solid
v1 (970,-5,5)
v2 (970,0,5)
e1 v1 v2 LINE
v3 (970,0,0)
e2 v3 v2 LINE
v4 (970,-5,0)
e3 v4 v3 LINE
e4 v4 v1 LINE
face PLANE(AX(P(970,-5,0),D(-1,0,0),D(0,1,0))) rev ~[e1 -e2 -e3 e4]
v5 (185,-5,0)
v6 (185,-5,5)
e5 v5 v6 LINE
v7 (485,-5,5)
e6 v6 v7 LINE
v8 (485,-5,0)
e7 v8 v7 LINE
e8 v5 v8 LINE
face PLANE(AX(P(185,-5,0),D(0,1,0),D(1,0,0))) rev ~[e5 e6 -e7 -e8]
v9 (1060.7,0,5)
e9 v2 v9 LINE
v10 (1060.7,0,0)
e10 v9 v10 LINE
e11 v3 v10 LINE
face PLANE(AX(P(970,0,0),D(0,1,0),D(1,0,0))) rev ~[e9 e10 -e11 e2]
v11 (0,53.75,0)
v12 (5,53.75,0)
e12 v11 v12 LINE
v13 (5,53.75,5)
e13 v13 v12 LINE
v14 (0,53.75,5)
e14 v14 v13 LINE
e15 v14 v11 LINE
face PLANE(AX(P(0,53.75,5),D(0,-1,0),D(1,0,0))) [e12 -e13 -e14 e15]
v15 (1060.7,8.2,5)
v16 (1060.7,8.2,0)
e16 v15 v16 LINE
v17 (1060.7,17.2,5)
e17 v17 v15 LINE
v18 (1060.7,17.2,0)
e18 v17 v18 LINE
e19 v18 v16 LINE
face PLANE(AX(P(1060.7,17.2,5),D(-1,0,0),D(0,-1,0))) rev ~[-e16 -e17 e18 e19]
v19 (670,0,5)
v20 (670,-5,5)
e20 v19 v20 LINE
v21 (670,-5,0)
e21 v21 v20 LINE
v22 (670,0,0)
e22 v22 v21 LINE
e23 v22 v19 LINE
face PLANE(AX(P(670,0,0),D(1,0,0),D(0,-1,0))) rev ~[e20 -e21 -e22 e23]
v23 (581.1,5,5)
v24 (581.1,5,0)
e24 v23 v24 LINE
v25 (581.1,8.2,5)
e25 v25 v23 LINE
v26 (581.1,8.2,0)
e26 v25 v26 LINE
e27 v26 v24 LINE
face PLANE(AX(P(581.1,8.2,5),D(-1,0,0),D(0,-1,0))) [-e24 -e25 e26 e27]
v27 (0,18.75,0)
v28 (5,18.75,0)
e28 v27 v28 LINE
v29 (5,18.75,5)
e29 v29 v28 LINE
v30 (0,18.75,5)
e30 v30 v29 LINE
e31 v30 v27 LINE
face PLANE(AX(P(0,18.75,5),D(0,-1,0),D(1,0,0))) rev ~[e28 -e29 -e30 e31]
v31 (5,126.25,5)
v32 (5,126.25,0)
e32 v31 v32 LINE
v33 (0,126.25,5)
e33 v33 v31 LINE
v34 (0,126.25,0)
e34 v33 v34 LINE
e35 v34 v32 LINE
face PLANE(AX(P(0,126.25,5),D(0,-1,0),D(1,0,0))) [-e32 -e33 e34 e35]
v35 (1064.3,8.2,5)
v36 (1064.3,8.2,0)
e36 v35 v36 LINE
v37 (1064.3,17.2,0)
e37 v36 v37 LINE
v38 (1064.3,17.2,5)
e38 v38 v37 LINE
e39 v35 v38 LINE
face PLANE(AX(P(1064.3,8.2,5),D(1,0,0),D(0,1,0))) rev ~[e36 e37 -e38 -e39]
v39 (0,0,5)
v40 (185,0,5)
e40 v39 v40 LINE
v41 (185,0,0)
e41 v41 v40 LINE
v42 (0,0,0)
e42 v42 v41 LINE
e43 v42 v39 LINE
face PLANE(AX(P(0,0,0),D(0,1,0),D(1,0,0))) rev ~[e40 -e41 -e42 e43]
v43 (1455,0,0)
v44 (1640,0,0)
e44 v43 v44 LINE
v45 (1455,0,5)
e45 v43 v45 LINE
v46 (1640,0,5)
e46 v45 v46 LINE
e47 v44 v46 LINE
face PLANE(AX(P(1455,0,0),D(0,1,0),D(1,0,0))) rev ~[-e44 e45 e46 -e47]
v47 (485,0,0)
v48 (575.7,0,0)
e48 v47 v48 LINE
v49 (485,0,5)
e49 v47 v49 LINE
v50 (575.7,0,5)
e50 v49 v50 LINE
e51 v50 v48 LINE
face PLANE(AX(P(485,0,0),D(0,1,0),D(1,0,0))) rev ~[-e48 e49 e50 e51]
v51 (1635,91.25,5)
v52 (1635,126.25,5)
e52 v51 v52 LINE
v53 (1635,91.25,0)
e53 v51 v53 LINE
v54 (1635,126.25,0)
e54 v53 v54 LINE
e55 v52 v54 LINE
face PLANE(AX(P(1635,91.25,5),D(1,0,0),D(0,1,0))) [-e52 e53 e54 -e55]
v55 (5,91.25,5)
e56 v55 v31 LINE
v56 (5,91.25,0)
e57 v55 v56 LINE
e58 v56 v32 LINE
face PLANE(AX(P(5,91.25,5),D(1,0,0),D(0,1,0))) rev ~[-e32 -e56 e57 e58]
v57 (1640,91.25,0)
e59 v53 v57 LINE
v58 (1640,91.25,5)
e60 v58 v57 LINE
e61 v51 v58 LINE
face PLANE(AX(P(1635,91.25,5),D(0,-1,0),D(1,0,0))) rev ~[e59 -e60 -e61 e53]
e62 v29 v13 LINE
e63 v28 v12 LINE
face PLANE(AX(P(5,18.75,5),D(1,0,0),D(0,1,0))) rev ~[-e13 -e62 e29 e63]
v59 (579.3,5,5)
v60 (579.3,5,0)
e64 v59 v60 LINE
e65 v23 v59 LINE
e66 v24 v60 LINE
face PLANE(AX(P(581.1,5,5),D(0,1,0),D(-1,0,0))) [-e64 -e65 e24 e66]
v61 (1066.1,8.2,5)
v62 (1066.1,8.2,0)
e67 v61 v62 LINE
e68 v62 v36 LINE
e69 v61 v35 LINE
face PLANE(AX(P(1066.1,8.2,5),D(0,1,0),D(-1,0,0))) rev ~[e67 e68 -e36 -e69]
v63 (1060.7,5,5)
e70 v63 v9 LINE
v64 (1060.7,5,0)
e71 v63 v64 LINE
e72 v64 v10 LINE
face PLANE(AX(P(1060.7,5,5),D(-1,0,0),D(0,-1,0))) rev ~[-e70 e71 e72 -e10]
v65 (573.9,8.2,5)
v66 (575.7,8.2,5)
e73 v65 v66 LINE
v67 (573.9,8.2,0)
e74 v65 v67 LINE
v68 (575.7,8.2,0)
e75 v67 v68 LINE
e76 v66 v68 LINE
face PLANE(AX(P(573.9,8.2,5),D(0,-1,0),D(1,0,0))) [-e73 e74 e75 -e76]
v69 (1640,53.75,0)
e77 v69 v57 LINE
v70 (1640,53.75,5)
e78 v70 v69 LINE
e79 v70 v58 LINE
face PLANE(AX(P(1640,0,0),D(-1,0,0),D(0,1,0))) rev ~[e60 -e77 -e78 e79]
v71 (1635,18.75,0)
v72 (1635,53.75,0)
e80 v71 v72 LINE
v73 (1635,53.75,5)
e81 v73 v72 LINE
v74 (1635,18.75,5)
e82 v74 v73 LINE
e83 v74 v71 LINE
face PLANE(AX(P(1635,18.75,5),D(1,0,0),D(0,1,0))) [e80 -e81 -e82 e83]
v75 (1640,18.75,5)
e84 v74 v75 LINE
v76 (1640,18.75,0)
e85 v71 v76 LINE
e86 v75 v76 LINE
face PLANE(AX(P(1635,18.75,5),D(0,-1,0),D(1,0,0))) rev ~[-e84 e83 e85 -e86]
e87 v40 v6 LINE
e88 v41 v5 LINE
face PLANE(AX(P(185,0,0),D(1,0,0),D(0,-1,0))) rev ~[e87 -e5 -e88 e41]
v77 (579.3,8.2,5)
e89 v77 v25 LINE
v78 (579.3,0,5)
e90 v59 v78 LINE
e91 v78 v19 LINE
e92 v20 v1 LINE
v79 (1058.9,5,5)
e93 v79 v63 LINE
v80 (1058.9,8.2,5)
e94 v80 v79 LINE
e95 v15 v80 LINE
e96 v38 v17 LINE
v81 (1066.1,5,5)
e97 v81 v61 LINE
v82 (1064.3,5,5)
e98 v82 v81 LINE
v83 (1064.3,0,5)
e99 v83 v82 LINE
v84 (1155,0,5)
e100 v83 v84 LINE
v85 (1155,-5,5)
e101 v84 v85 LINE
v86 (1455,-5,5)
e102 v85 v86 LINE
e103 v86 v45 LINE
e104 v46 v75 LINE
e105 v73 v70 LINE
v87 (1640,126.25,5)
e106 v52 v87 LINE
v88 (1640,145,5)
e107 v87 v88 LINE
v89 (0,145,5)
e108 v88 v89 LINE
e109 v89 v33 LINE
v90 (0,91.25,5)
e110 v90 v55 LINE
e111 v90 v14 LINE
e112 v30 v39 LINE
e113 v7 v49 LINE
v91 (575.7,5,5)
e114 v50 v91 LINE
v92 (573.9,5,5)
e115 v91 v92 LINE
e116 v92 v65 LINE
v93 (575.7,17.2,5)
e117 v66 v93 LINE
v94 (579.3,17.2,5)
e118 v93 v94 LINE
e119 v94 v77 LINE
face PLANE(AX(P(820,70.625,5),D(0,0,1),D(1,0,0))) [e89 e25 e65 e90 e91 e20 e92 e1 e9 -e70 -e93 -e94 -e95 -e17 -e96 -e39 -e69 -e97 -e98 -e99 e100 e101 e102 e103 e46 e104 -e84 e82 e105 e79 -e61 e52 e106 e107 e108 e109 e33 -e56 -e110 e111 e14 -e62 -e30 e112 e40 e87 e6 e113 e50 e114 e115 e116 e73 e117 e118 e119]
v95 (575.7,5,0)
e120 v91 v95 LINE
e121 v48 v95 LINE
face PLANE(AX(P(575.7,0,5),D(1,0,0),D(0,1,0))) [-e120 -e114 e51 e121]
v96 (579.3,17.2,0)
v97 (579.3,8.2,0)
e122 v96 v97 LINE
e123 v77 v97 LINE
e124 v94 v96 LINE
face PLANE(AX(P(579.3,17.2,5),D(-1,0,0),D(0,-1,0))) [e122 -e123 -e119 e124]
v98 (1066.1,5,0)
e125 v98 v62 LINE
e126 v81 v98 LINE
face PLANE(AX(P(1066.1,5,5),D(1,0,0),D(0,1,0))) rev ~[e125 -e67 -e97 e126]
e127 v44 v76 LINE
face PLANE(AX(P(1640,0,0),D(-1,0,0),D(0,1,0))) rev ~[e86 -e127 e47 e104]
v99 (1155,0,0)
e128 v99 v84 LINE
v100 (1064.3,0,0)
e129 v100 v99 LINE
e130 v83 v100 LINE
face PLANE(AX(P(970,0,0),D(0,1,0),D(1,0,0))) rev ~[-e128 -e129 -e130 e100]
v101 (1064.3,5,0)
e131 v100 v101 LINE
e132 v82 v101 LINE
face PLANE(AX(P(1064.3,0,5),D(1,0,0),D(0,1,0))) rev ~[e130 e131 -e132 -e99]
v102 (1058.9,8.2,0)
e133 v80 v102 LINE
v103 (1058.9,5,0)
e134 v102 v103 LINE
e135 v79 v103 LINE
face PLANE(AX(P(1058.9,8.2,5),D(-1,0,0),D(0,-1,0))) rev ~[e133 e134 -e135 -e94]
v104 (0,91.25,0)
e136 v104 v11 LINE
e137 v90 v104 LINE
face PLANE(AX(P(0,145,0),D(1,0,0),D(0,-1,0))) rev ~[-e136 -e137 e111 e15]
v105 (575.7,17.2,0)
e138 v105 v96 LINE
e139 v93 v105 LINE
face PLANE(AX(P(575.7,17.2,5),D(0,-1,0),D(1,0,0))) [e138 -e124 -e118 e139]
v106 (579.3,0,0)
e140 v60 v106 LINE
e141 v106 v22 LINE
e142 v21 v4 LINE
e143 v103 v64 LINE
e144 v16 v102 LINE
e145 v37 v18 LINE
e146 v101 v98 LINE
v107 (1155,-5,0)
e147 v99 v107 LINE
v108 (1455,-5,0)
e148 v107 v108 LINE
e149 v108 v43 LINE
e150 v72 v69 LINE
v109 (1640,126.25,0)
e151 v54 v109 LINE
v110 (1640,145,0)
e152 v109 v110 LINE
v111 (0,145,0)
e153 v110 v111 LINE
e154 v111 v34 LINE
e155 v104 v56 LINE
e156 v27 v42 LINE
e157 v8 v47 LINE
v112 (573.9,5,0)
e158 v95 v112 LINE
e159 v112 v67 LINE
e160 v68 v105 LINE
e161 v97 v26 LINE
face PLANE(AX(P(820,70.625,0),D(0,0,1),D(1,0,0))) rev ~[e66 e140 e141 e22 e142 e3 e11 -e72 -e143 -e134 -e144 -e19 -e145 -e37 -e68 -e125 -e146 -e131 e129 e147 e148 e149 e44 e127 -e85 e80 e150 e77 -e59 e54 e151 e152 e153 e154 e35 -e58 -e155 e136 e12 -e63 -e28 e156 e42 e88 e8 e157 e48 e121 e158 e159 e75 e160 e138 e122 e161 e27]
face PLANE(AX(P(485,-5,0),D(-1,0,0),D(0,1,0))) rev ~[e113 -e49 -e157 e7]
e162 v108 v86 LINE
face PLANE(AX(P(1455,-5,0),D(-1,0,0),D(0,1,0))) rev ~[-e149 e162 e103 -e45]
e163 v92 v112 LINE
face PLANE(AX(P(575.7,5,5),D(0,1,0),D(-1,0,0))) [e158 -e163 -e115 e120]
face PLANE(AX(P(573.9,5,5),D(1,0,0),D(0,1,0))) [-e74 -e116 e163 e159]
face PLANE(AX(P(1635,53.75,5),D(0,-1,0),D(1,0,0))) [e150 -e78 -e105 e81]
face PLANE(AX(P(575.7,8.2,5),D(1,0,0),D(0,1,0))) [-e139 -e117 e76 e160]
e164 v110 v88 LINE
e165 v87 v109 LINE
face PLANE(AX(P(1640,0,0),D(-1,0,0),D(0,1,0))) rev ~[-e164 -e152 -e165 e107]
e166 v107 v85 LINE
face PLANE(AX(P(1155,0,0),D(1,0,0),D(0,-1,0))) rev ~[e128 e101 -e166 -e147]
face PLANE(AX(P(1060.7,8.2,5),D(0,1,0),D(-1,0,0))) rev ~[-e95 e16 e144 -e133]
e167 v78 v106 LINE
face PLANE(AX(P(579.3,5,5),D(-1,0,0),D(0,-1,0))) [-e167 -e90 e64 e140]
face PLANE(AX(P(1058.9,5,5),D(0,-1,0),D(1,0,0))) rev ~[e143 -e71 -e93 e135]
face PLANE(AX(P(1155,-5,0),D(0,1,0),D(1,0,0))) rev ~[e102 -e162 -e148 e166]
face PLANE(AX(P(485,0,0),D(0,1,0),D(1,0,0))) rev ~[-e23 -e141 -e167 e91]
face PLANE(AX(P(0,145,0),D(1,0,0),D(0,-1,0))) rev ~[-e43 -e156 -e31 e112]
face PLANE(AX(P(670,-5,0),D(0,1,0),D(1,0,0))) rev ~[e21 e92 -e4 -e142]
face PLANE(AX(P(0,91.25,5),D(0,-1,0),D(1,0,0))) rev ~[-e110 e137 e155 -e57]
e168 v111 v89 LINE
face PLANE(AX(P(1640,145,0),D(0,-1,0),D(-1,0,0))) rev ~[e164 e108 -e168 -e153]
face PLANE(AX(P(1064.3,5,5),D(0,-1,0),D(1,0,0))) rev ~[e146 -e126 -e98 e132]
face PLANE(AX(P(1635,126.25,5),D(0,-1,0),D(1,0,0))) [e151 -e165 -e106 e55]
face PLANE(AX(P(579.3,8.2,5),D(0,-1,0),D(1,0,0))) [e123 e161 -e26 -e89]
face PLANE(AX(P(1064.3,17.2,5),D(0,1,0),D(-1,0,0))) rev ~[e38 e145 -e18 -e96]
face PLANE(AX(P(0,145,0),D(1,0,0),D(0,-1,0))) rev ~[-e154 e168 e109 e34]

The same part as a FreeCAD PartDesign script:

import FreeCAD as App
import Part
import Sketcher

V = App.Vector


def add_polygon(sketch, points):
    """Adds a closed chain of lines whose ends are joined by coincident constraints."""
    first, n = sketch.GeometryCount, len(points)
    for a, b in zip(points, points[1:] + points[:1]):
        sketch.addGeometry(Part.LineSegment(App.Vector(*a, 0), App.Vector(*b, 0)), False)
    for i in range(n):
        sketch.addConstraint(Sketcher.Constraint("Coincident", first + i, 2, first + (i + 1) % n, 1))

doc = App.newDocument("Part")
body = doc.addObject("PartDesign::Body", "Body")

sketch1 = body.newObject("Sketcher::SketchObject", "Sketch")
sketch1.AttachmentSupport = (doc.getObject("XY_Plane"), [""])
sketch1.MapMode = "FlatFace"
add_polygon(sketch1, [(0, 145), (0, 0), (185, 0), (185, -5), (485, -5), (485, 0), (670, 0), (670, -5), (970, -5), (970, 0), (1155, 0), (1155, -5), (1455, -5), (1455, 0), (1640, 0), (1640, 145)])
sketch1.addConstraint([
    Sketcher.Constraint("Vertical", 0),
    Sketcher.Constraint("Horizontal", 1),
    Sketcher.Constraint("Vertical", 2),
    Sketcher.Constraint("Horizontal", 3),
    Sketcher.Constraint("Vertical", 4),
    Sketcher.Constraint("Horizontal", 5),
    Sketcher.Constraint("Vertical", 6),
    Sketcher.Constraint("Horizontal", 7),
    Sketcher.Constraint("Vertical", 8),
    Sketcher.Constraint("Horizontal", 9),
    Sketcher.Constraint("Vertical", 10),
    Sketcher.Constraint("Horizontal", 11),
    Sketcher.Constraint("Vertical", 12),
    Sketcher.Constraint("Horizontal", 13),
    Sketcher.Constraint("Vertical", 14),
    Sketcher.Constraint("Horizontal", 15),
    Sketcher.Constraint("Coincident", 0, 2, -1, 1),
    Sketcher.Constraint("PointOnObject", 4, 2, -1),
    Sketcher.Constraint("PointOnObject", 8, 2, -1),
    Sketcher.Constraint("PointOnObject", 12, 2, -1),
    Sketcher.Constraint("Horizontal", 3, 2, 6, 2),
    Sketcher.Constraint("Horizontal", 7, 2, 10, 2),
    Sketcher.Constraint("Equal", 1, 5),
    Sketcher.Constraint("Equal", 3, 7),
    Sketcher.Constraint("Equal", 5, 9),
    Sketcher.Constraint("Equal", 7, 11),
    Sketcher.Constraint("Equal", 9, 13),
    Sketcher.Constraint("DistanceX", 1, 1, 1, 2, 185.0),
    Sketcher.Constraint("DistanceX", 3, 1, 3, 2, 300.0),
    Sketcher.Constraint("DistanceY", 0, 2, 0, 1, 145.0),
    Sketcher.Constraint("DistanceY", 2, 2, 2, 1, 5.0),
])
pad1 = body.newObject("PartDesign::Pad", "Pad")
pad1.Profile = sketch1
pad1.Length = 5

sketch2 = body.newObject("Sketcher::SketchObject", "Sketch001")
sketch2.AttachmentSupport = (doc.getObject("XY_Plane"), [""])
sketch2.MapMode = "FlatFace"
sketch2.AttachmentOffset = App.Placement(V(0, 0, 5), App.Rotation())
add_polygon(sketch2, [(1635, 126), (1635, 91), (1640, 91), (1640, 126)])
add_polygon(sketch2, [(1635, 54), (1635, 19), (1640, 19), (1640, 54)])
add_polygon(sketch2, [(0, 54), (0, 19), (5, 19), (5, 54)])
add_polygon(sketch2, [(0, 126), (0, 91), (5, 91), (5, 126)])
sketch2.addConstraint([
    Sketcher.Constraint("Vertical", 0),
    Sketcher.Constraint("Horizontal", 1),
    Sketcher.Constraint("Vertical", 2),
    Sketcher.Constraint("Horizontal", 3),
    Sketcher.Constraint("Vertical", 4),
    Sketcher.Constraint("Horizontal", 5),
    Sketcher.Constraint("Vertical", 6),
    Sketcher.Constraint("Horizontal", 7),
    Sketcher.Constraint("Vertical", 8),
    Sketcher.Constraint("Horizontal", 9),
    Sketcher.Constraint("Vertical", 10),
    Sketcher.Constraint("Horizontal", 11),
    Sketcher.Constraint("Vertical", 12),
    Sketcher.Constraint("Horizontal", 13),
    Sketcher.Constraint("Vertical", 14),
    Sketcher.Constraint("Horizontal", 15),
    Sketcher.Constraint("PointOnObject", 8, 2, -2),
    Sketcher.Constraint("PointOnObject", 12, 2, -2),
    Sketcher.Constraint("Horizontal", 5, 2, 8, 2),
    Sketcher.Constraint("Horizontal", 7, 2, 10, 2),
    Sketcher.Constraint("Horizontal", 1, 2, 12, 2),
    Sketcher.Constraint("Horizontal", 3, 2, 14, 2),
    Sketcher.Constraint("Vertical", 3, 2, 4, 2),
    Sketcher.Constraint("Vertical", 2, 2, 5, 2),
    Sketcher.Constraint("Vertical", 10, 2, 13, 2),
    Sketcher.Constraint("Equal", 7, 9),
    Sketcher.Constraint("Equal", 2, 4),
    Sketcher.Constraint("DistanceX", 1, 1, 1, 2, 5.0),
    Sketcher.Constraint("DistanceY", 0, 2, 0, 1, 35.0),
    Sketcher.Constraint("DistanceX", -1, 1, 0, 2, 1635.0),
    Sketcher.Constraint("DistanceY", 4, 2, 0, 2, 72.5),
    Sketcher.Constraint("DistanceY", -1, 1, 0, 2, 91.25),
])
pocket1 = body.newObject("PartDesign::Pocket", "Pocket")
pocket1.Profile = sketch2
pocket1.Length = 5

sketch3 = body.newObject("Sketcher::SketchObject", "Sketch002")
sketch3.AttachmentSupport = (doc.getObject("XY_Plane"), [""])
sketch3.MapMode = "FlatFace"
sketch3.AttachmentOffset = App.Placement(V(0, 0, 5), App.Rotation())
add_polygon(sketch3, [(575.7, 0), (579.3, 0), (579.3, 5), (581.1, 5), (581.1, 8.2), (579.3, 8.2), (579.3, 17.2), (575.7, 17.2), (575.7, 8.2), (573.9, 8.2), (573.9, 5), (575.7, 5)])
add_polygon(sketch3, [(1064.3, 8.2), (1064.3, 17.2), (1060.7, 17.2), (1060.7, 8.2), (1058.9, 8.2), (1058.9, 5), (1060.7, 5), (1060.7, 0), (1064.3, 0), (1064.3, 5), (1066.1, 5), (1066.1, 8.2)])
sketch3.addConstraint([
    Sketcher.Constraint("Horizontal", 0),
    Sketcher.Constraint("Vertical", 1),
    Sketcher.Constraint("Horizontal", 2),
    Sketcher.Constraint("Vertical", 3),
    Sketcher.Constraint("Horizontal", 4),
    Sketcher.Constraint("Vertical", 5),
    Sketcher.Constraint("Horizontal", 6),
    Sketcher.Constraint("Vertical", 7),
    Sketcher.Constraint("Horizontal", 8),
    Sketcher.Constraint("Vertical", 9),
    Sketcher.Constraint("Horizontal", 10),
    Sketcher.Constraint("Vertical", 11),
    Sketcher.Constraint("Vertical", 12),
    Sketcher.Constraint("Horizontal", 13),
    Sketcher.Constraint("Vertical", 14),
    Sketcher.Constraint("Horizontal", 15),
    Sketcher.Constraint("Vertical", 16),
    Sketcher.Constraint("Horizontal", 17),
    Sketcher.Constraint("Vertical", 18),
    Sketcher.Constraint("Horizontal", 19),
    Sketcher.Constraint("Vertical", 20),
    Sketcher.Constraint("Horizontal", 21),
    Sketcher.Constraint("Vertical", 22),
    Sketcher.Constraint("Horizontal", 23),
    Sketcher.Constraint("PointOnObject", 0, 2, -1),
    Sketcher.Constraint("PointOnObject", 18, 2, -1),
    Sketcher.Constraint("Horizontal", 4, 2, 7, 2),
    Sketcher.Constraint("Horizontal", 2, 2, 9, 2),
    Sketcher.Constraint("Horizontal", 6, 2, 12, 2),
    Sketcher.Constraint("Horizontal", 8, 2, 14, 2),
    Sketcher.Constraint("Horizontal", 10, 2, 16, 2),
    Sketcher.Constraint("Horizontal", 17, 2, 20, 2),
    Sketcher.Constraint("Horizontal", 15, 2, 22, 2),
    Sketcher.Constraint("Vertical", 1, 2, 4, 2),
    Sketcher.Constraint("Vertical", 7, 2, 10, 2),
    Sketcher.Constraint("Vertical", 14, 2, 17, 2),
    Sketcher.Constraint("Vertical", 12, 2, 19, 2),
    Sketcher.Constraint("Equal", 4, 8),
    Sketcher.Constraint("Equal", 6, 13),
    Sketcher.Constraint("Equal", 10, 15),
    Sketcher.Constraint("Equal", 17, 21),
    Sketcher.Constraint("DistanceY", 1, 1, 1, 2, 5.0),
    Sketcher.Constraint("DistanceY", 5, 1, 5, 2, 9.0),
    Sketcher.Constraint("DistanceX", 0, 1, 0, 2, 3.6),
    Sketcher.Constraint("DistanceX", 2, 1, 2, 2, 1.8),
    Sketcher.Constraint("DistanceY", 3, 1, 3, 2, 3.2),
    Sketcher.Constraint("DistanceX", 5, 2, 12, 2, 485.0),
    Sketcher.Constraint("DistanceX", -1, 1, 0, 2, 579.3),
])
pocket2 = body.newObject("PartDesign::Pocket", "Pocket001")
pocket2.Profile = sketch3
pocket2.Length = 10

doc.recompute()
